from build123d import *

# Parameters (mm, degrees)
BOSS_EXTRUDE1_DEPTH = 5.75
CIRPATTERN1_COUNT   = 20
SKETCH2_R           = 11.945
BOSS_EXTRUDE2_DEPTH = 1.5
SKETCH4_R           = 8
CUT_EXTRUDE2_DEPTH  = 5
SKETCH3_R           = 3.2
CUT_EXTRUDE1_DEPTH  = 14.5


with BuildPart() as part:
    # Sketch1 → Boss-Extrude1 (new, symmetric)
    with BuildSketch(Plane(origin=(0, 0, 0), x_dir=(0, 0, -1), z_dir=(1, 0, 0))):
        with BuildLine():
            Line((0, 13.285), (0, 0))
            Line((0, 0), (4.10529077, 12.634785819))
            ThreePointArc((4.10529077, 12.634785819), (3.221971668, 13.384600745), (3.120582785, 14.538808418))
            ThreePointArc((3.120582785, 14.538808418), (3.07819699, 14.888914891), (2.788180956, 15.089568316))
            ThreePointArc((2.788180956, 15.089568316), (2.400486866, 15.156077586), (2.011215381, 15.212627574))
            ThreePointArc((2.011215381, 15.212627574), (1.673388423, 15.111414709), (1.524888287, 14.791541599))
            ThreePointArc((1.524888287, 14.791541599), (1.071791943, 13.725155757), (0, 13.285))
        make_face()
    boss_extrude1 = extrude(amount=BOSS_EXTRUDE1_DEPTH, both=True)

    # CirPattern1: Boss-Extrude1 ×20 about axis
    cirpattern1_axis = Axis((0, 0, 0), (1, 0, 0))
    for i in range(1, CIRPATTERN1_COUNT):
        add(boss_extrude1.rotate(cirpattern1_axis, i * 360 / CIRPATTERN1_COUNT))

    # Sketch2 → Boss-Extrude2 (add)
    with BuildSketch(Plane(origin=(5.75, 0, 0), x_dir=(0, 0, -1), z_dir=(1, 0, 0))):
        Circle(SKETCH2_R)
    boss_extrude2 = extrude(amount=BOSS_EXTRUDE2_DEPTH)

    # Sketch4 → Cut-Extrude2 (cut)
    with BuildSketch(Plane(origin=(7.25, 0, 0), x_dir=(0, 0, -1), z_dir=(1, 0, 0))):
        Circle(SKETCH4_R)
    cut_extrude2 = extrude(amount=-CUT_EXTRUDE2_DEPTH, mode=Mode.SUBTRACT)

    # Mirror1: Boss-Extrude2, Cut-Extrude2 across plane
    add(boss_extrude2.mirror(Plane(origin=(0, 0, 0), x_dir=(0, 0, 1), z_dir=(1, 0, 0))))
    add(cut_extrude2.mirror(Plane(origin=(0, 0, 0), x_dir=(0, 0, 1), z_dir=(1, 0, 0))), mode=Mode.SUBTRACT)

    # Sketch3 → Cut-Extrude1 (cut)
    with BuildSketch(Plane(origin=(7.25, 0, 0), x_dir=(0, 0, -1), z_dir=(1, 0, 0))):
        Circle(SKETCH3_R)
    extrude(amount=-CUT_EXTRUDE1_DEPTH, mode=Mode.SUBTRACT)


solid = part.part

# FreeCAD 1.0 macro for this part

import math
import FreeCAD as App
import Part
import Sketcher

V = App.Vector
Q = App.Units.Quantity

doc = App.newDocument("Part")
params = doc.addObject("Spreadsheet::Sheet", "Params")
for row, (alias, value) in enumerate([
    ("sketch1_radius", "0.43 mm"),
    ("pad1_length", "11.5 mm"),
    ("sketch2_diameter", "23.89 mm"),
    ("pad2_length", "1.5 mm"),
    ("sketch3_diameter", "16 mm"),
    ("pocket1_length", "5 mm"),
    ("sketch4_diameter", "6.4 mm"),
    ("pocket2_length", "14.5 mm"),
], start=1):
    params.set(f"A{row}", alias)
    params.set(f"B{row}", "=" + value)
    params.setAlias(f"B{row}", alias)

body = doc.addObject("PartDesign::Body", "Body")

sketch1 = body.newObject("Sketcher::SketchObject", "Sketch")
sketch1.AttachmentSupport = (doc.getObject("YZ_Plane"), [""])
sketch1.MapMode = "FlatFace"
sketch1.addGeometry(Part.LineSegment(V(13.29, 0, 0), V(0, 0, 0)), False)
sketch1.addGeometry(Part.LineSegment(V(0, 0, 0), V(12.63, -4.11, 0)), False)
sketch1.addGeometry(Part.ArcOfCircle(Part.Circle(V(14.09, -4.58, 0), V(0, 0, 1), 1.52), math.radians(73), math.radians(162)), False)
sketch1.addGeometry(Part.ArcOfCircle(Part.Circle(V(14.67, -2.71, 0), V(0, 0, 1), 0.43), math.radians(-107), math.radians(-10)), False)
sketch1.addGeometry(Part.ArcOfCircle(Part.Circle(V(0, 0, 0), V(0, 0, 1), 15.35), math.radians(-10.47), math.radians(-7.53)), False)
sketch1.addGeometry(Part.ArcOfCircle(Part.Circle(V(14.79, -1.95, 0), V(0, 0, 1), 0.43), math.radians(-8), math.radians(89)), False)
sketch1.addGeometry(Part.ArcOfCircle(Part.Circle(V(14.81, 0, 0), V(0, 0, 1), 1.52), math.radians(180), math.radians(269)), False)
sketch1.addConstraint(Sketcher.Constraint("Coincident", 0, 2, 1, 1))
sketch1.addConstraint(Sketcher.Constraint("Coincident", 1, 2, 2, 2))
sketch1.addConstraint(Sketcher.Constraint("Tangent", 2, 1, 3, 1))
sketch1.addConstraint(Sketcher.Constraint("Tangent", 3, 2, 4, 1))
sketch1.addConstraint(Sketcher.Constraint("Tangent", 4, 2, 5, 1))
sketch1.addConstraint(Sketcher.Constraint("Tangent", 5, 2, 6, 2))
sketch1.addConstraint(Sketcher.Constraint("Coincident", 6, 1, 0, 1))
sketch1.addConstraint(Sketcher.Constraint("Horizontal", 0))
sketch1.addConstraint(Sketcher.Constraint("Coincident", 4, 3, -1, 1))
sketch1.addConstraint(Sketcher.Constraint("Coincident", 0, 2, -1, 1))
sketch1.addConstraint(Sketcher.Constraint("Equal", 3, 5))
sketch1.addConstraint(Sketcher.Constraint("Equal", 2, 6))
sketch1.addConstraint(Sketcher.Constraint("PointOnObject", 6, 3, -1))
sketch1.addConstraint(Sketcher.Constraint("Angle", 1, Q("-18 deg")))
sketch1.addConstraint(Sketcher.Constraint("Radius", 3, 0.43))
sketch1.addConstraint(Sketcher.Constraint("Radius", 2, 1.525))
sketch1.addConstraint(Sketcher.Constraint("DistanceX", 0, 2, 0, 1, 13.285))
sketch1.addConstraint(Sketcher.Constraint("Distance", 1, 13.285))
sketch1.addConstraint(Sketcher.Constraint("Radius", 4, 15.345002))
sketch1.addConstraint(Sketcher.Constraint("DistanceY", 2, 1, 3, 2, 0.332402))
sketch1.setExpression("Constraints[14]", "Params.sketch1_radius")
pad1 = body.newObject("PartDesign::Pad", "Pad")
pad1.Profile = sketch1
pad1.setExpression("Length", "Params.pad1_length")
pad1.Midplane = True
doc.recompute()

polarpattern = body.newObject("PartDesign::PolarPattern", "PolarPattern")
polarpattern.Originals = [pad1]
polarpattern.Axis = (doc.getObject("X_Axis"), [""])
polarpattern.Angle = 360
polarpattern.Occurrences = 20
body.Tip = polarpattern

sketch2 = body.newObject("Sketcher::SketchObject", "Sketch001")
sketch2.AttachmentSupport = (doc.getObject("YZ_Plane"), [""])
sketch2.MapMode = "FlatFace"
sketch2.AttachmentOffset = App.Placement(V(0, 0, 5.75), App.Rotation())
sketch2.addGeometry(Part.Circle(V(0, 0, 0), V(0, 0, 1), 12), False)
sketch2.addConstraint(Sketcher.Constraint("Coincident", 0, 3, -1, 1))
sketch2.addConstraint(Sketcher.Constraint("Diameter", 0, 23.89))
sketch2.setExpression("Constraints[1]", "Params.sketch2_diameter")
pad2 = body.newObject("PartDesign::Pad", "Pad001")
pad2.Profile = sketch2
pad2.setExpression("Length", "Params.pad2_length")

sketch3 = body.newObject("Sketcher::SketchObject", "Sketch002")
sketch3.AttachmentSupport = (doc.getObject("YZ_Plane"), [""])
sketch3.MapMode = "FlatFace"
sketch3.AttachmentOffset = App.Placement(V(0, 0, 7.25), App.Rotation())
sketch3.addGeometry(Part.Circle(V(0, 0, 0), V(0, 0, 1), 8), False)
sketch3.addConstraint(Sketcher.Constraint("Coincident", 0, 3, -1, 1))
sketch3.addConstraint(Sketcher.Constraint("Diameter", 0, 16.0))
sketch3.setExpression("Constraints[1]", "Params.sketch3_diameter")
pocket1 = body.newObject("PartDesign::Pocket", "Pocket")
pocket1.Profile = sketch3
pocket1.setExpression("Length", "Params.pocket1_length")
doc.recompute()

mirrored = body.newObject("PartDesign::Mirrored", "Mirrored")
mirrored.Originals = [pad2, pocket1]
mirrored.MirrorPlane = (doc.getObject("YZ_Plane"), [""])
body.Tip = mirrored

sketch4 = body.newObject("Sketcher::SketchObject", "Sketch003")
sketch4.AttachmentSupport = (doc.getObject("YZ_Plane"), [""])
sketch4.MapMode = "FlatFace"
sketch4.AttachmentOffset = App.Placement(V(0, 0, 7.25), App.Rotation())
sketch4.addGeometry(Part.Circle(V(0, 0, 0), V(0, 0, 1), 3.2), False)
sketch4.addConstraint(Sketcher.Constraint("Coincident", 0, 3, -1, 1))
sketch4.addConstraint(Sketcher.Constraint("Diameter", 0, 6.4))
sketch4.setExpression("Constraints[1]", "Params.sketch4_diameter")
pocket2 = body.newObject("PartDesign::Pocket", "Pocket001")
pocket2.Profile = sketch4
pocket2.setExpression("Length", "Params.pocket2_length")

doc.recompute()
